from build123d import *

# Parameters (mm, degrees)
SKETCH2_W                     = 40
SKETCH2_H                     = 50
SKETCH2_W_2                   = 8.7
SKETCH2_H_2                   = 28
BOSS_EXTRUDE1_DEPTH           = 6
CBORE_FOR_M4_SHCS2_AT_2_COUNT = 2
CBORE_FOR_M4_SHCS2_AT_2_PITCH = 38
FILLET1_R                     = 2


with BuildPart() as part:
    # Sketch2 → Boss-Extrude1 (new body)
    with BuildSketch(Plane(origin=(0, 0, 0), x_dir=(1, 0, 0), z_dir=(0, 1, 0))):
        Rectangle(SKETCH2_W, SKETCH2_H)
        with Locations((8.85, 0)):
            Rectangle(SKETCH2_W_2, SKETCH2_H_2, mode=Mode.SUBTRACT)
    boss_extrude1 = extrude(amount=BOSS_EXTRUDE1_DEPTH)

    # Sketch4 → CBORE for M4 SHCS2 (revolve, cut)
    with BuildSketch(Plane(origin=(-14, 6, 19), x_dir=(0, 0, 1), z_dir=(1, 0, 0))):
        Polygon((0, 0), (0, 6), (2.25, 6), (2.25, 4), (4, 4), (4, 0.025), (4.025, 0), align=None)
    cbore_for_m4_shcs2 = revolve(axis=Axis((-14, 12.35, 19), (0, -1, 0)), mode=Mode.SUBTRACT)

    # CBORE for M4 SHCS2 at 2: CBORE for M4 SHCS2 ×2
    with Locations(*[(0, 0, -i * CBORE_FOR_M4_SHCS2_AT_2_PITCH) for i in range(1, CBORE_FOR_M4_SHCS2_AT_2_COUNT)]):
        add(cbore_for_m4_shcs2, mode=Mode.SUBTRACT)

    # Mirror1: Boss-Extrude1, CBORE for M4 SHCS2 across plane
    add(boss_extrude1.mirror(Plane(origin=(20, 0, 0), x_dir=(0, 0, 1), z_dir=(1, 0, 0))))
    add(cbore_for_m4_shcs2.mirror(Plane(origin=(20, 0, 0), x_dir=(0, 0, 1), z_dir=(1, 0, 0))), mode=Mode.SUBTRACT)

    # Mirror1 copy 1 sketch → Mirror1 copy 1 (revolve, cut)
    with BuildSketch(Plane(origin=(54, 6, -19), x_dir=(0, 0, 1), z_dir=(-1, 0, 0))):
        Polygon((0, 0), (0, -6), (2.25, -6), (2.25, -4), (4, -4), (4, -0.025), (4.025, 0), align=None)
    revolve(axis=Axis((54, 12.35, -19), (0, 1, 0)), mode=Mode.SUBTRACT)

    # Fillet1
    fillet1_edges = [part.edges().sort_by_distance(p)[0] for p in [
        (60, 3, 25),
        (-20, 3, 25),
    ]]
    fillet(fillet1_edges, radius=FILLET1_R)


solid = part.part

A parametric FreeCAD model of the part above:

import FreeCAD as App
import Part
import Sketcher
Q = App.Units.Quantity


def edges_at(feature, points):
    """Names of the edges that pass closest to the given points."""
    edges = feature.Shape.Edges
    near = lambda p: min(range(len(edges)), key=lambda i: edges[i].distToShape(Part.Vertex(*p))[0])
    return sorted({f"Edge{near(p) + 1}" for p in points})


def add_polygon(sketch, points):
    """Adds a closed chain of lines whose ends are joined by coincident constraints."""
    first, n = sketch.GeometryCount, len(points)
    for a, b in zip(points, points[1:] + points[:1]):
        sketch.addGeometry(Part.LineSegment(App.Vector(*a, 0), App.Vector(*b, 0)), False)
    for i in range(n):
        sketch.addConstraint(Sketcher.Constraint("Coincident", first + i, 2, first + (i + 1) % n, 1))

doc = App.newDocument("Part")
body = doc.addObject("PartDesign::Body", "Body")

sketch1 = body.newObject("Sketcher::SketchObject", "Sketch")
sketch1.AttachmentSupport = (doc.getObject("XZ_Plane"), [""])
sketch1.MapMode = "FlatFace"
add_polygon(sketch1, [(-20, -25), (-20, 25), (20, 25), (20, -25)])
add_polygon(sketch1, [(13, 14), (4, 14), (4, -14), (13, -14)])
sketch1.addConstraint(Sketcher.Constraint("Vertical", 0))
sketch1.addConstraint(Sketcher.Constraint("Horizontal", 1))
sketch1.addConstraint(Sketcher.Constraint("Vertical", 2))
sketch1.addConstraint(Sketcher.Constraint("Horizontal", 3))
sketch1.addConstraint(Sketcher.Constraint("Horizontal", 4))
sketch1.addConstraint(Sketcher.Constraint("Vertical", 5))
sketch1.addConstraint(Sketcher.Constraint("Horizontal", 6))
sketch1.addConstraint(Sketcher.Constraint("Vertical", 7))
sketch1.addConstraint(Sketcher.Constraint("Symmetric", 0, 2, 2, 2, -1, 1))
sketch1.addConstraint(Sketcher.Constraint("DistanceX", 1, 1, 1, 2, Q("40 mm")))
sketch1.addConstraint(Sketcher.Constraint("DistanceY", 0, 1, 0, 2, Q("50 mm")))
sketch1.addConstraint(Sketcher.Constraint("DistanceY", 5, 2, 5, 1, Q("28 mm")))
sketch1.addConstraint(Sketcher.Constraint("DistanceX", 4, 2, 4, 1, Q("8.7 mm")))
sketch1.addConstraint(Sketcher.Constraint("DistanceY", -1, 1, 4, 2, Q("14 mm")))
sketch1.addConstraint(Sketcher.Constraint("DistanceX", -1, 1, 4, 2, Q("4.5 mm")))
pad1 = body.newObject("PartDesign::Pad", "Pad")
pad1.Profile = sketch1
pad1.Length = 6
pad1.Reversed = True

sketch2 = body.newObject("Sketcher::SketchObject", "Sketch001")
sketch2.AttachmentSupport = (doc.getObject("YZ_Plane"), [""])
sketch2.MapMode = "FlatFace"
sketch2.AttachmentOffset = App.Placement(App.Vector(0, 0, -14), App.Rotation())
add_polygon(sketch2, [(0, 19), (6, 19), (6, 23.025), (5.975, 23), (2, 23), (2, 21.25), (0, 21.25)])
sketch2.addGeometry(Part.LineSegment(App.Vector(6, 19, 0), App.Vector(0, 19, 0)), True)
sketch2.addConstraint(Sketcher.Constraint("Horizontal", 0))
sketch2.addConstraint(Sketcher.Constraint("Vertical", 1))
sketch2.addConstraint(Sketcher.Constraint("Horizontal", 3))
sketch2.addConstraint(Sketcher.Constraint("Vertical", 4))
sketch2.addConstraint(Sketcher.Constraint("Horizontal", 5))
sketch2.addConstraint(Sketcher.Constraint("Vertical", 6))
sketch2.addConstraint(Sketcher.Constraint("Horizontal", 7))
sketch2.addConstraint(Sketcher.Constraint("Coincident", 7, 1, 0, 2))
sketch2.addConstraint(Sketcher.Constraint("PointOnObject", 5, 2, -2))
sketch2.addConstraint(Sketcher.Constraint("PointOnObject", 7, 2, -2))
sketch2.addConstraint(Sketcher.Constraint("DistanceX", 0, 1, 0, 2, Q("6 mm")))
sketch2.addConstraint(Sketcher.Constraint("DistanceX", 5, 2, 5, 1, Q("2 mm")))
sketch2.addConstraint(Sketcher.Constraint("Angle", 2, Q("-135 deg")))
sketch2.addConstraint(Sketcher.Constraint("DistanceY", -1, 1, 0, 2, Q("19 mm")))
sketch2.addConstraint(Sketcher.Constraint("DistanceY", -1, 1, 2, 2, Q("23 mm")))
sketch2.addConstraint(Sketcher.Constraint("DistanceY", 4, 2, 4, 1, Q("1.75 mm")))
sketch2.addConstraint(Sketcher.Constraint("DistanceX", 3, 2, 3, 1, Q("3.975 mm")))
groove = body.newObject("PartDesign::Groove", "Groove")
groove.Profile = sketch2
groove.ReferenceAxis = (sketch2, ["Axis0"])
groove.Angle = 360
doc.recompute()

linearpattern = body.newObject("PartDesign::LinearPattern", "LinearPattern")
linearpattern.Originals = [groove]
linearpattern.Direction = (doc.getObject("Z_Axis"), [""])
linearpattern.Mode = "offset"
linearpattern.Offset = 38
linearpattern.Occurrences = 2
linearpattern.Reversed = True
body.Tip = linearpattern
doc.recompute()

datumplane = body.newObject("PartDesign::Plane", "DatumPlane")
datumplane.AttachmentSupport = (doc.getObject("YZ_Plane"), [""])
datumplane.MapMode = "FlatFace"
datumplane.AttachmentOffset = App.Placement(App.Vector(0, 0, 20), App.Rotation())
mirrored = body.newObject("PartDesign::Mirrored", "Mirrored")
mirrored.Originals = [pad1, groove]
mirrored.MirrorPlane = (datumplane, [""])
body.Tip = mirrored

sketch3 = body.newObject("Sketcher::SketchObject", "Sketch002")
sketch3.AttachmentSupport = (doc.getObject("YZ_Plane"), [""])
sketch3.MapMode = "FlatFace"
sketch3.AttachmentOffset = App.Placement(App.Vector(0, 0, 54), App.Rotation())
add_polygon(sketch3, [(6, -19), (0, -19), (0, -16.75), (2, -16.75), (2, -15), (5.975, -15), (6, -14.975)])
sketch3.addGeometry(Part.LineSegment(App.Vector(0, -19, 0), App.Vector(6, -19, 0)), True)
sketch3.addConstraint(Sketcher.Constraint("Horizontal", 0))
sketch3.addConstraint(Sketcher.Constraint("Vertical", 1))
sketch3.addConstraint(Sketcher.Constraint("Horizontal", 2))
sketch3.addConstraint(Sketcher.Constraint("Vertical", 3))
sketch3.addConstraint(Sketcher.Constraint("Horizontal", 4))
sketch3.addConstraint(Sketcher.Constraint("Vertical", 6))
sketch3.addConstraint(Sketcher.Constraint("Horizontal", 7))
sketch3.addConstraint(Sketcher.Constraint("Coincident", 7, 1, 0, 2))
sketch3.addConstraint(Sketcher.Constraint("PointOnObject", 0, 2, -2))
sketch3.addConstraint(Sketcher.Constraint("Vertical", 5, 2, 7, 2))
sketch3.addConstraint(Sketcher.Constraint("DistanceX", 0, 2, 0, 1, Q("6 mm")))
sketch3.addConstraint(Sketcher.Constraint("DistanceX", 2, 1, 2, 2, Q("2 mm")))
sketch3.addConstraint(Sketcher.Constraint("Angle", 5, Q("45 deg")))
sketch3.addConstraint(Sketcher.Constraint("DistanceY", 0, 2, -1, 1, Q("19 mm")))
sketch3.addConstraint(Sketcher.Constraint("DistanceY", 3, 2, -1, 1, Q("15 mm")))
sketch3.addConstraint(Sketcher.Constraint("DistanceY", 1, 1, 1, 2, Q("2.25 mm")))
sketch3.addConstraint(Sketcher.Constraint("DistanceX", 4, 1, 4, 2, Q("3.975 mm")))
groove2 = body.newObject("PartDesign::Groove", "Groove001")
groove2.Profile = sketch3
groove2.ReferenceAxis = (sketch3, ["Axis0"])
groove2.Angle = 360
doc.recompute()

fillet = body.newObject("PartDesign::Fillet", "Fillet")
fillet.Base = (groove2, edges_at(groove2, [(60, 3, 25), (-20, 3, 25)]))
fillet.Radius = 2

doc.recompute()
